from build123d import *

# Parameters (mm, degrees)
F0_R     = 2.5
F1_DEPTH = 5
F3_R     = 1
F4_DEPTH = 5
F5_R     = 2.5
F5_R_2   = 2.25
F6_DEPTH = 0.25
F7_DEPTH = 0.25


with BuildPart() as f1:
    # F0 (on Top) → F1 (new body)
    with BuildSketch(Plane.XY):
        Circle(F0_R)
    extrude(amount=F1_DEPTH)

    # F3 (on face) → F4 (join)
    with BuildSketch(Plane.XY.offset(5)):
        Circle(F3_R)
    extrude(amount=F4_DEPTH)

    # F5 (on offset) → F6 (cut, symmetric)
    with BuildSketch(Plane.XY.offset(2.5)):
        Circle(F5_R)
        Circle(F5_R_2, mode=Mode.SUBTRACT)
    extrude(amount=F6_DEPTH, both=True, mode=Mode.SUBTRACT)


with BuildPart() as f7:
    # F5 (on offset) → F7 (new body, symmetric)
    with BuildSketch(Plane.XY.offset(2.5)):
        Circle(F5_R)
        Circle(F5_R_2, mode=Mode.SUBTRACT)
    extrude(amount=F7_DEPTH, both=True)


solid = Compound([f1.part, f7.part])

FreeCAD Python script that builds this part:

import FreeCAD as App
import Part
import Sketcher

doc = App.newDocument("Part")
params = doc.addObject("Spreadsheet::Sheet", "Params")
for row, (alias, value) in enumerate([
    ("sketch1_diameter", "5 mm"),
    ("pad1_length", "5 mm"),
    ("sketch2_diameter", "2 mm"),
    ("pad2_length", "5 mm"),
    ("sketch3_diameter", "5 mm"),
    ("sketch3_diameter2", "4.5 mm"),
    ("pocket1_length", "0.5 mm"),
    ("sketch4_diameter", "5 mm"),
    ("sketch4_diameter2", "4.5 mm"),
    ("pad3_length", "0.5 mm"),
], start=1):
    params.set(f"A{row}", alias)
    params.set(f"B{row}", "=" + value)
    params.setAlias(f"B{row}", alias)

body = doc.addObject("PartDesign::Body", "Body")

# Sketch on XY plane
sketch1 = body.newObject("Sketcher::SketchObject", "Sketch")
sketch1.AttachmentSupport = (doc.getObject("XY_Plane"), [""])
sketch1.MapMode = "FlatFace"
sketch1.addGeometry(Part.Circle(App.Vector(0, 0, 0), App.Vector(0, 0, 1), 2.5), False)
sketch1.addConstraint(Sketcher.Constraint("Coincident", 0, 3, -1, 1))
sketch1.addConstraint(Sketcher.Constraint("Diameter", 0, 5.0))
sketch1.setExpression("Constraints[1]", "Params.sketch1_diameter")
pad1 = body.newObject("PartDesign::Pad", "Pad")
pad1.Profile = sketch1
pad1.setExpression("Length", "Params.pad1_length")

# Sketch on XY plane
sketch2 = body.newObject("Sketcher::SketchObject", "Sketch001")
sketch2.AttachmentSupport = (doc.getObject("XY_Plane"), [""])
sketch2.MapMode = "FlatFace"
sketch2.AttachmentOffset = App.Placement(App.Vector(0, 0, 5), App.Rotation())
sketch2.addGeometry(Part.Circle(App.Vector(0, 0, 0), App.Vector(0, 0, 1), 1), False)
sketch2.addConstraint(Sketcher.Constraint("Coincident", 0, 3, -1, 1))
sketch2.addConstraint(Sketcher.Constraint("Diameter", 0, 2.0))
sketch2.setExpression("Constraints[1]", "Params.sketch2_diameter")
pad2 = body.newObject("PartDesign::Pad", "Pad001")
pad2.Profile = sketch2
pad2.setExpression("Length", "Params.pad2_length")

# Sketch on XY plane
sketch3 = body.newObject("Sketcher::SketchObject", "Sketch002")
sketch3.AttachmentSupport = (doc.getObject("XY_Plane"), [""])
sketch3.MapMode = "FlatFace"
sketch3.AttachmentOffset = App.Placement(App.Vector(0, 0, 2.5), App.Rotation())
sketch3.addGeometry(Part.Circle(App.Vector(0, 0, 0), App.Vector(0, 0, 1), 2.5), False)
sketch3.addGeometry(Part.Circle(App.Vector(0, 0, 0), App.Vector(0, 0, 1), 2.2), False)
sketch3.addConstraint(Sketcher.Constraint("Coincident", 0, 3, -1, 1))
sketch3.addConstraint(Sketcher.Constraint("Coincident", 1, 3, -1, 1))
sketch3.addConstraint(Sketcher.Constraint("Diameter", 0, 5.0))
sketch3.addConstraint(Sketcher.Constraint("Diameter", 1, 4.5))
sketch3.setExpression("Constraints[2]", "Params.sketch3_diameter")
sketch3.setExpression("Constraints[3]", "Params.sketch3_diameter2")
pocket1 = body.newObject("PartDesign::Pocket", "Pocket")
pocket1.Profile = sketch3
pocket1.setExpression("Length", "Params.pocket1_length")
pocket1.Midplane = True
body2 = doc.addObject("PartDesign::Body", "Body001")

# Sketch on XY plane
sketch4 = body2.newObject("Sketcher::SketchObject", "Sketch003")
sketch4.AttachmentSupport = (doc.getObject("XY_Plane001"), [""])
sketch4.MapMode = "FlatFace"
sketch4.AttachmentOffset = App.Placement(App.Vector(0, 0, 2.5), App.Rotation())
sketch4.addGeometry(Part.Circle(App.Vector(0, 0, 0), App.Vector(0, 0, 1), 2.5), False)
sketch4.addGeometry(Part.Circle(App.Vector(0, 0, 0), App.Vector(0, 0, 1), 2.2), False)
sketch4.addConstraint(Sketcher.Constraint("Coincident", 0, 3, -1, 1))
sketch4.addConstraint(Sketcher.Constraint("Coincident", 1, 3, -1, 1))
sketch4.addConstraint(Sketcher.Constraint("Diameter", 0, 5.0))
sketch4.addConstraint(Sketcher.Constraint("Diameter", 1, 4.5))
sketch4.setExpression("Constraints[2]", "Params.sketch4_diameter")
sketch4.setExpression("Constraints[3]", "Params.sketch4_diameter2")
pad3 = body2.newObject("PartDesign::Pad", "Pad002")
pad3.Profile = sketch4
pad3.setExpression("Length", "Params.pad3_length")
pad3.Midplane = True

doc.recompute()
